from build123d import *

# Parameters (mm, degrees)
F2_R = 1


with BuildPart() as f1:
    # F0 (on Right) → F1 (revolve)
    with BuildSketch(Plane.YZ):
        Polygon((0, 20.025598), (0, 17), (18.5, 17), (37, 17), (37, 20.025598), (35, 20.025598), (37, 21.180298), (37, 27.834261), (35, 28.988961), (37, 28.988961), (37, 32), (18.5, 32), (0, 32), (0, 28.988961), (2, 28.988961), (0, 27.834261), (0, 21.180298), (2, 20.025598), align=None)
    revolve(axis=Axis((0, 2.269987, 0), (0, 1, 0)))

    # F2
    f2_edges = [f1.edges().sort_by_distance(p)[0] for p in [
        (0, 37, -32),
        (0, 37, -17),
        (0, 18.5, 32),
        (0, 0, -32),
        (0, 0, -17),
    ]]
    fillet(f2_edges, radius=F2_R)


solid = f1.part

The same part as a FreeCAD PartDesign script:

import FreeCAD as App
import Part
import Sketcher
from FreeCAD import Vector
Q = App.Units.Quantity


def edges_at(feature, points):
    """Names of the edges that pass closest to the given points."""
    edges = feature.Shape.Edges
    near = lambda p: min(range(len(edges)), key=lambda i: edges[i].distToShape(Part.Vertex(*p))[0])
    return sorted({f"Edge{near(p) + 1}" for p in points})

doc = App.newDocument("Part")
body = doc.addObject("PartDesign::Body", "Body")

sketch1 = body.newObject("Sketcher::SketchObject", "Sketch")
sketch1.AttachmentSupport = (doc.getObject("YZ_Plane"), [""])
sketch1.MapMode = "FlatFace"
sketch1.addGeometry([
    Part.LineSegment(Vector(0, 20, 0), Vector(0, 17, 0)),
    Part.LineSegment(Vector(0, 17, 0), Vector(37, 17, 0)),
    Part.LineSegment(Vector(37, 17, 0), Vector(37, 20, 0)),
    Part.LineSegment(Vector(37, 20, 0), Vector(35, 20, 0)),
    Part.LineSegment(Vector(35, 20, 0), Vector(37, 21.2, 0)),
    Part.LineSegment(Vector(37, 21.2, 0), Vector(37, 27.8, 0)),
    Part.LineSegment(Vector(37, 27.8, 0), Vector(35, 29, 0)),
    Part.LineSegment(Vector(35, 29, 0), Vector(37, 29, 0)),
    Part.LineSegment(Vector(37, 29, 0), Vector(37, 32, 0)),
    Part.LineSegment(Vector(37, 32, 0), Vector(0, 32, 0)),
    Part.LineSegment(Vector(0, 32, 0), Vector(0, 29, 0)),
    Part.LineSegment(Vector(0, 29, 0), Vector(2, 29, 0)),
    Part.LineSegment(Vector(2, 29, 0), Vector(0, 27.8, 0)),
    Part.LineSegment(Vector(0, 27.8, 0), Vector(0, 21.2, 0)),
    Part.LineSegment(Vector(0, 21.2, 0), Vector(2, 20, 0)),
    Part.LineSegment(Vector(2, 20, 0), Vector(0, 20, 0)),
], False)
sketch1.addConstraint([
    Sketcher.Constraint("Coincident", 0, 2, 1, 1),
    Sketcher.Constraint("Coincident", 1, 2, 2, 1),
    Sketcher.Constraint("Coincident", 2, 2, 3, 1),
    Sketcher.Constraint("Coincident", 3, 2, 4, 1),
    Sketcher.Constraint("Coincident", 4, 2, 5, 1),
    Sketcher.Constraint("Coincident", 5, 2, 6, 1),
    Sketcher.Constraint("Coincident", 6, 2, 7, 1),
    Sketcher.Constraint("Coincident", 7, 2, 8, 1),
    Sketcher.Constraint("Coincident", 8, 2, 9, 1),
    Sketcher.Constraint("Coincident", 9, 2, 10, 1),
    Sketcher.Constraint("Coincident", 10, 2, 11, 1),
    Sketcher.Constraint("Coincident", 11, 2, 12, 1),
    Sketcher.Constraint("Coincident", 12, 2, 13, 1),
    Sketcher.Constraint("Coincident", 13, 2, 14, 1),
    Sketcher.Constraint("Coincident", 14, 2, 15, 1),
    Sketcher.Constraint("Coincident", 15, 2, 0, 1),
    Sketcher.Constraint("Vertical", 0),
    Sketcher.Constraint("Horizontal", 1),
    Sketcher.Constraint("Vertical", 2),
    Sketcher.Constraint("Horizontal", 3),
    Sketcher.Constraint("Vertical", 5),
    Sketcher.Constraint("Horizontal", 7),
    Sketcher.Constraint("Vertical", 8),
    Sketcher.Constraint("Horizontal", 9),
    Sketcher.Constraint("Vertical", 10),
    Sketcher.Constraint("Horizontal", 11),
    Sketcher.Constraint("Vertical", 13),
    Sketcher.Constraint("Horizontal", 15),
    Sketcher.Constraint("PointOnObject", 0, 2, -2),
    Sketcher.Constraint("PointOnObject", 9, 2, -2),
    Sketcher.Constraint("PointOnObject", 12, 2, -2),
    Sketcher.Constraint("Parallel", 4, 12),
    Sketcher.Constraint("Parallel", 6, 14),
    Sketcher.Constraint("Horizontal", 7, 2, 10, 2),
    Sketcher.Constraint("Horizontal", 5, 2, 12, 2),
    Sketcher.Constraint("Horizontal", 4, 2, 13, 2),
    Sketcher.Constraint("Horizontal", 3, 2, 14, 2),
    Sketcher.Constraint("Vertical", 2, 2, 4, 2),
    Sketcher.Constraint("Vertical", 3, 2, 6, 2),
    Sketcher.Constraint("Vertical", 5, 2, 7, 2),
    Sketcher.Constraint("Vertical", 11, 2, 14, 2),
    Sketcher.Constraint("DistanceX", 1, 1, 1, 2, 37.0),
    Sketcher.Constraint("DistanceX", 3, 2, 3, 1, 2.0),
    Sketcher.Constraint("Angle", 4, Q("29.999988 deg")),
    Sketcher.Constraint("DistanceY", -1, 1, 0, 2, 17.0),
    Sketcher.Constraint("DistanceY", -1, 1, 8, 2, 32.0),
    Sketcher.Constraint("DistanceY", 8, 1, 8, 2, 3.011039),
    Sketcher.Constraint("DistanceY", -1, 1, 4, 2, 21.180298),
])
revolution = body.newObject("PartDesign::Revolution", "Revolution")
revolution.Profile = sketch1
revolution.ReferenceAxis = (sketch1, ["H_Axis"])
revolution.Angle = 360
doc.recompute()

fillet = body.newObject("PartDesign::Fillet", "Fillet")
fillet.Base = (revolution, edges_at(revolution, [
    (0, 37, -32),
    (0, 37, -17),
    (0, 18.5, 32),
    (0, 0, -32),
    (0, 0, -17),
]))
fillet.Radius = 1

doc.recompute()
